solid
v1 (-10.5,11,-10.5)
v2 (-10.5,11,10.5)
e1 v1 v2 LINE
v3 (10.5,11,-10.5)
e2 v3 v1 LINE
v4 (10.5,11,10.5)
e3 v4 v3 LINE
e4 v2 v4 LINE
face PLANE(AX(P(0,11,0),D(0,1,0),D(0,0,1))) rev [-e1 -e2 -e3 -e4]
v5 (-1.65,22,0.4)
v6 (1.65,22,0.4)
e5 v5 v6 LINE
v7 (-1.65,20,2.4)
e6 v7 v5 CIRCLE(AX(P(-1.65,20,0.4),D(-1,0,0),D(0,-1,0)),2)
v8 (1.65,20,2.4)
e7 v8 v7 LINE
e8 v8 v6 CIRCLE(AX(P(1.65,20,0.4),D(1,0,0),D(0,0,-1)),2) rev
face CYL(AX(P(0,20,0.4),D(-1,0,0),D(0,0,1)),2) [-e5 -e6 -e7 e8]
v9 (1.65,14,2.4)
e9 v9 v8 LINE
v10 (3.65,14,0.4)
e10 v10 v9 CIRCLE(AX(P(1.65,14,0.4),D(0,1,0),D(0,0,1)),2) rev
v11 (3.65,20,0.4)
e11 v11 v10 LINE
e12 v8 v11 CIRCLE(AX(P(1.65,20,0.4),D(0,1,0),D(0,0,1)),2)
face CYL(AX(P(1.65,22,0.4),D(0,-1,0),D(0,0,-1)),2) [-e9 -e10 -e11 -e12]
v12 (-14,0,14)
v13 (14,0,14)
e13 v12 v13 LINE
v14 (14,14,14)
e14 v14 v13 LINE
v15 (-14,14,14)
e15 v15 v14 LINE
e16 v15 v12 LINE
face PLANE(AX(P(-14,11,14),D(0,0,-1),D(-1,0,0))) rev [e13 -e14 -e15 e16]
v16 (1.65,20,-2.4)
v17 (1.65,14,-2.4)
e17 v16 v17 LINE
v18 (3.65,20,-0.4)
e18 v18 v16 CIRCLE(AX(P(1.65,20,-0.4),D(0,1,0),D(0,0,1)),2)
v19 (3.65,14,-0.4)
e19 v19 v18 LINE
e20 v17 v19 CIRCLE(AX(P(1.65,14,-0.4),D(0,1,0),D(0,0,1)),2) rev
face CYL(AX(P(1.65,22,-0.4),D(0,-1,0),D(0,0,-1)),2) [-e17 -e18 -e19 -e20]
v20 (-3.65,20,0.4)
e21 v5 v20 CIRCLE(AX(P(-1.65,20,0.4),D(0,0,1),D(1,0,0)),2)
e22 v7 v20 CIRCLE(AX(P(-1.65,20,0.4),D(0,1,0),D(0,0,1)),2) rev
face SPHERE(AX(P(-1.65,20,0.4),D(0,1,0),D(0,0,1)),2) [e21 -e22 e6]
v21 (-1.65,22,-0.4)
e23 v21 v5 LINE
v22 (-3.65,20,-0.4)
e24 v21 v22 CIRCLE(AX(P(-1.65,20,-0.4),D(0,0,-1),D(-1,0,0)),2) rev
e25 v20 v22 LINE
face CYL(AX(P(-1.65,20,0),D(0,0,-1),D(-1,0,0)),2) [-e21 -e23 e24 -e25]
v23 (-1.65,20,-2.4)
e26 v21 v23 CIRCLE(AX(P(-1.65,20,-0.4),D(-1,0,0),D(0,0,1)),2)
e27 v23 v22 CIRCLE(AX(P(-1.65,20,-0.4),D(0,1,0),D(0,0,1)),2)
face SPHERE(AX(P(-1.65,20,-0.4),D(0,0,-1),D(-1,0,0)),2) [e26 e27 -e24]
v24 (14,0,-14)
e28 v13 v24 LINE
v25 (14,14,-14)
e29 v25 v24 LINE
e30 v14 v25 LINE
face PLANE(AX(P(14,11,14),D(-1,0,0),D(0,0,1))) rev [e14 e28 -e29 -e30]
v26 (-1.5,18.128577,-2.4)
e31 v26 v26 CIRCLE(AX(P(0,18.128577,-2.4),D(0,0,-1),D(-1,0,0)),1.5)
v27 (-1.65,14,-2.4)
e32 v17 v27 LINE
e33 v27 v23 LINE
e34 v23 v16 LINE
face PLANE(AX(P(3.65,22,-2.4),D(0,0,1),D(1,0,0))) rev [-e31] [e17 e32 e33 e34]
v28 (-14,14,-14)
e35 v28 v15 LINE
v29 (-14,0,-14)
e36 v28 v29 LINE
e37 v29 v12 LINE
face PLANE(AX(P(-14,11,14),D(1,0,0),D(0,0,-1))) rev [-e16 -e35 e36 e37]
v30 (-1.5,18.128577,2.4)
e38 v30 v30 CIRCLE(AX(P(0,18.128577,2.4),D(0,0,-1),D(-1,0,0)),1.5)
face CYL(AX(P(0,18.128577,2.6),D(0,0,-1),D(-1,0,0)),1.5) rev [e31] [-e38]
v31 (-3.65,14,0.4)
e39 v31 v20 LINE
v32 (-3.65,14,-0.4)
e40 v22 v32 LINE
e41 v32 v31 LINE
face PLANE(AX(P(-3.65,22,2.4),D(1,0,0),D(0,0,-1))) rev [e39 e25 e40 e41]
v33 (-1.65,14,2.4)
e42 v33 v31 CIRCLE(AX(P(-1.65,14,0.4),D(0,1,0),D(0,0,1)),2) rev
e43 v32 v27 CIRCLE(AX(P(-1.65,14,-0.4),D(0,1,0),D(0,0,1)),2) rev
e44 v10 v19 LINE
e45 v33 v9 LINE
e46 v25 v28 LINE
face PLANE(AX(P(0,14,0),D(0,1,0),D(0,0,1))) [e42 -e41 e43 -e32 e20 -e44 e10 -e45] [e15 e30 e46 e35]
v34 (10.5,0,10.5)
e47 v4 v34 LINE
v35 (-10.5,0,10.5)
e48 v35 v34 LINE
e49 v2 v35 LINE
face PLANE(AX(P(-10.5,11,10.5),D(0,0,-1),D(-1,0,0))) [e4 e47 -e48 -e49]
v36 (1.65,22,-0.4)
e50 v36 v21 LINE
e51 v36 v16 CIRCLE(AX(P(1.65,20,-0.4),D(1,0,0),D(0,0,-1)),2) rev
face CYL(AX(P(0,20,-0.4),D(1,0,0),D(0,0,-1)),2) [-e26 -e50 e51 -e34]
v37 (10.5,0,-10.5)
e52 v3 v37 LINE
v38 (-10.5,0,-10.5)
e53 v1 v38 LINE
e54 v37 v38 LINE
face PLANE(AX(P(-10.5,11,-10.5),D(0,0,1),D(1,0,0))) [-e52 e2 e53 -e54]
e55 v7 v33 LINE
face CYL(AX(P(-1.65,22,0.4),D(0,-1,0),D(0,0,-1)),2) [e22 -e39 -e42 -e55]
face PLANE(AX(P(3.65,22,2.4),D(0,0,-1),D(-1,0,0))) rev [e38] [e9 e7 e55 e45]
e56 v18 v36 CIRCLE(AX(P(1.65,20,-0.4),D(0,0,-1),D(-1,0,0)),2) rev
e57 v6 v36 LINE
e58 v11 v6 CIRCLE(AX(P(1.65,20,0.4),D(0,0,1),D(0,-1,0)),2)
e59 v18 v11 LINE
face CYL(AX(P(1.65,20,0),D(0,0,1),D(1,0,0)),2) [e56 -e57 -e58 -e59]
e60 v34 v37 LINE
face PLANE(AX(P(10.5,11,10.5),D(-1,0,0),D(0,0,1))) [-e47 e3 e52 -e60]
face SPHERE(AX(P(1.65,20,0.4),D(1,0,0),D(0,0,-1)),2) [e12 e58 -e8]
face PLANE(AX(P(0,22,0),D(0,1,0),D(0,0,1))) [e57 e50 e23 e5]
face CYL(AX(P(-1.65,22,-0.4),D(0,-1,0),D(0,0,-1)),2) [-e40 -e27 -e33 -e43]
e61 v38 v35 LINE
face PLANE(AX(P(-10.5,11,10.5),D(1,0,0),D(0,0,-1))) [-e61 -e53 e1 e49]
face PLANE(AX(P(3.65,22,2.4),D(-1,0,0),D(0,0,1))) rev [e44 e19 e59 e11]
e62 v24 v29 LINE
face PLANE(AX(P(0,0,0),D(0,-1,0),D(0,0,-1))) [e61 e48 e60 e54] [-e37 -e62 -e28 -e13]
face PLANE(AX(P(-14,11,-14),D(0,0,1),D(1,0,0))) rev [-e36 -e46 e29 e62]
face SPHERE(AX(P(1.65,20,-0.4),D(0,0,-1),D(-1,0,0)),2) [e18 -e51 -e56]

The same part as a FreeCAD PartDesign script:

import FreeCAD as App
import Part
import Sketcher


def edges_at(feature, points):
    """Names of the edges that pass closest to the given points."""
    edges = feature.Shape.Edges
    near = lambda p: min(range(len(edges)), key=lambda i: edges[i].distToShape(Part.Vertex(*p))[0])
    return sorted({f"Edge{near(p) + 1}" for p in points})


def add_polygon(sketch, points):
    """Adds a closed chain of lines whose ends are joined by coincident constraints."""
    first, n = sketch.GeometryCount, len(points)
    for a, b in zip(points, points[1:] + points[:1]):
        sketch.addGeometry(Part.LineSegment(App.Vector(*a, 0), App.Vector(*b, 0)), False)
    for i in range(n):
        sketch.addConstraint(Sketcher.Constraint("Coincident", first + i, 2, first + (i + 1) % n, 1))

doc = App.newDocument("Part")
body = doc.addObject("PartDesign::Body", "Body")

# Sketch on XZ plane
sketch1 = body.newObject("Sketcher::SketchObject", "Sketch")
sketch1.AttachmentSupport = (doc.getObject("XZ_Plane"), [""])
sketch1.MapMode = "FlatFace"
add_polygon(sketch1, [(-14, -14), (-14, 14), (14, 14), (14, -14)])  # lines 0-3
add_polygon(sketch1, [(10.5, 10.5), (-10.5, 10.5), (-10.5, -10.5), (10.5, -10.5)])  # lines 4-7
sketch1.addConstraint(Sketcher.Constraint("Vertical", 0))
sketch1.addConstraint(Sketcher.Constraint("Horizontal", 1))
sketch1.addConstraint(Sketcher.Constraint("Vertical", 2))
sketch1.addConstraint(Sketcher.Constraint("Horizontal", 3))
sketch1.addConstraint(Sketcher.Constraint("Horizontal", 4))
sketch1.addConstraint(Sketcher.Constraint("Vertical", 5))
sketch1.addConstraint(Sketcher.Constraint("Horizontal", 6))
sketch1.addConstraint(Sketcher.Constraint("Vertical", 7))
sketch1.addConstraint(Sketcher.Constraint("Symmetric", 0, 2, 2, 2, -1, 1))
sketch1.addConstraint(Sketcher.Constraint("Symmetric", 4, 2, 6, 2, -1, 1))
sketch1.addConstraint(Sketcher.Constraint("Equal", 3, 0))
sketch1.addConstraint(Sketcher.Constraint("Equal", 6, 5))
sketch1.addConstraint(Sketcher.Constraint("DistanceX", 1, 1, 1, 2, 28.0))
sketch1.addConstraint(Sketcher.Constraint("DistanceX", 4, 2, 4, 1, 21.0))
pad1 = body.newObject("PartDesign::Pad", "Pad")
pad1.Profile = sketch1
pad1.Length = 11
pad1.Reversed = True

# Sketch on XZ plane
sketch2 = body.newObject("Sketcher::SketchObject", "Sketch001")
sketch2.AttachmentSupport = (doc.getObject("XZ_Plane"), [""])
sketch2.MapMode = "FlatFace"
sketch2.AttachmentOffset = App.Placement(App.Vector(0, 0, -11), App.Rotation())
add_polygon(sketch2, [(-14, -14), (-14, 14), (14, 14), (14, -14)])  # lines 0-3
sketch2.addConstraint(Sketcher.Constraint("Vertical", 0))
sketch2.addConstraint(Sketcher.Constraint("Horizontal", 1))
sketch2.addConstraint(Sketcher.Constraint("Vertical", 2))
sketch2.addConstraint(Sketcher.Constraint("Horizontal", 3))
sketch2.addConstraint(Sketcher.Constraint("Symmetric", 0, 2, 2, 2, -1, 1))
sketch2.addConstraint(Sketcher.Constraint("Equal", 3, 0))
sketch2.addConstraint(Sketcher.Constraint("DistanceX", 1, 1, 1, 2, 28.0))
pad2 = body.newObject("PartDesign::Pad", "Pad001")
pad2.Profile = sketch2
pad2.Length = 3
pad2.Reversed = True

# Sketch on XZ plane
sketch3 = body.newObject("Sketcher::SketchObject", "Sketch002")
sketch3.AttachmentSupport = (doc.getObject("XZ_Plane"), [""])
sketch3.MapMode = "FlatFace"
sketch3.AttachmentOffset = App.Placement(App.Vector(0, 0, -14), App.Rotation())
add_polygon(sketch3, [(-3.65, -2.4), (-3.65, 2.4), (3.65, 2.4), (3.65, -2.4)])  # lines 0-3
sketch3.addConstraint(Sketcher.Constraint("Vertical", 0))
sketch3.addConstraint(Sketcher.Constraint("Horizontal", 1))
sketch3.addConstraint(Sketcher.Constraint("Vertical", 2))
sketch3.addConstraint(Sketcher.Constraint("Horizontal", 3))
sketch3.addConstraint(Sketcher.Constraint("Symmetric", 0, 2, 2, 2, -1, 1))
sketch3.addConstraint(Sketcher.Constraint("DistanceX", 1, 1, 1, 2, 7.3))
sketch3.addConstraint(Sketcher.Constraint("DistanceY", 0, 1, 0, 2, 4.8))
pad3 = body.newObject("PartDesign::Pad", "Pad002")
pad3.Profile = sketch3
pad3.Length = 8
pad3.Reversed = True
doc.recompute()

fillet = body.newObject("PartDesign::Fillet", "Fillet")
fillet.Base = (pad3, edges_at(pad3, [
    (-3.65, 18, -2.4),
    (-3.65, 18, 2.4),
    (3.65, 18, 2.4),
    (3.65, 18, -2.4),
    (-3.65, 22, 0),
    (0, 22, 2.4),
    (3.65, 22, 0),
    (0, 22, -2.4),
]))
fillet.Radius = 2

# Sketch on XY plane
sketch4 = body.newObject("Sketcher::SketchObject", "Sketch003")
sketch4.AttachmentSupport = (doc.getObject("XY_Plane"), [""])
sketch4.MapMode = "FlatFace"
sketch4.AttachmentOffset = App.Placement(App.Vector(0, 0, -2.4), App.Rotation())
sketch4.addGeometry(Part.Circle(App.Vector(0, 18.128577, 0), App.Vector(0, 0, 1), 1.5), False)
sketch4.addConstraint(Sketcher.Constraint("PointOnObject", 0, 3, -2))
sketch4.addConstraint(Sketcher.Constraint("Diameter", 0, 3.0))
sketch4.addConstraint(Sketcher.Constraint("DistanceY", -1, 1, 0, 3, 18.128577))
pocket1 = body.newObject("PartDesign::Pocket", "Pocket")
pocket1.Profile = sketch4
pocket1.Length = 5
pocket1.Reversed = True

doc.recompute()
